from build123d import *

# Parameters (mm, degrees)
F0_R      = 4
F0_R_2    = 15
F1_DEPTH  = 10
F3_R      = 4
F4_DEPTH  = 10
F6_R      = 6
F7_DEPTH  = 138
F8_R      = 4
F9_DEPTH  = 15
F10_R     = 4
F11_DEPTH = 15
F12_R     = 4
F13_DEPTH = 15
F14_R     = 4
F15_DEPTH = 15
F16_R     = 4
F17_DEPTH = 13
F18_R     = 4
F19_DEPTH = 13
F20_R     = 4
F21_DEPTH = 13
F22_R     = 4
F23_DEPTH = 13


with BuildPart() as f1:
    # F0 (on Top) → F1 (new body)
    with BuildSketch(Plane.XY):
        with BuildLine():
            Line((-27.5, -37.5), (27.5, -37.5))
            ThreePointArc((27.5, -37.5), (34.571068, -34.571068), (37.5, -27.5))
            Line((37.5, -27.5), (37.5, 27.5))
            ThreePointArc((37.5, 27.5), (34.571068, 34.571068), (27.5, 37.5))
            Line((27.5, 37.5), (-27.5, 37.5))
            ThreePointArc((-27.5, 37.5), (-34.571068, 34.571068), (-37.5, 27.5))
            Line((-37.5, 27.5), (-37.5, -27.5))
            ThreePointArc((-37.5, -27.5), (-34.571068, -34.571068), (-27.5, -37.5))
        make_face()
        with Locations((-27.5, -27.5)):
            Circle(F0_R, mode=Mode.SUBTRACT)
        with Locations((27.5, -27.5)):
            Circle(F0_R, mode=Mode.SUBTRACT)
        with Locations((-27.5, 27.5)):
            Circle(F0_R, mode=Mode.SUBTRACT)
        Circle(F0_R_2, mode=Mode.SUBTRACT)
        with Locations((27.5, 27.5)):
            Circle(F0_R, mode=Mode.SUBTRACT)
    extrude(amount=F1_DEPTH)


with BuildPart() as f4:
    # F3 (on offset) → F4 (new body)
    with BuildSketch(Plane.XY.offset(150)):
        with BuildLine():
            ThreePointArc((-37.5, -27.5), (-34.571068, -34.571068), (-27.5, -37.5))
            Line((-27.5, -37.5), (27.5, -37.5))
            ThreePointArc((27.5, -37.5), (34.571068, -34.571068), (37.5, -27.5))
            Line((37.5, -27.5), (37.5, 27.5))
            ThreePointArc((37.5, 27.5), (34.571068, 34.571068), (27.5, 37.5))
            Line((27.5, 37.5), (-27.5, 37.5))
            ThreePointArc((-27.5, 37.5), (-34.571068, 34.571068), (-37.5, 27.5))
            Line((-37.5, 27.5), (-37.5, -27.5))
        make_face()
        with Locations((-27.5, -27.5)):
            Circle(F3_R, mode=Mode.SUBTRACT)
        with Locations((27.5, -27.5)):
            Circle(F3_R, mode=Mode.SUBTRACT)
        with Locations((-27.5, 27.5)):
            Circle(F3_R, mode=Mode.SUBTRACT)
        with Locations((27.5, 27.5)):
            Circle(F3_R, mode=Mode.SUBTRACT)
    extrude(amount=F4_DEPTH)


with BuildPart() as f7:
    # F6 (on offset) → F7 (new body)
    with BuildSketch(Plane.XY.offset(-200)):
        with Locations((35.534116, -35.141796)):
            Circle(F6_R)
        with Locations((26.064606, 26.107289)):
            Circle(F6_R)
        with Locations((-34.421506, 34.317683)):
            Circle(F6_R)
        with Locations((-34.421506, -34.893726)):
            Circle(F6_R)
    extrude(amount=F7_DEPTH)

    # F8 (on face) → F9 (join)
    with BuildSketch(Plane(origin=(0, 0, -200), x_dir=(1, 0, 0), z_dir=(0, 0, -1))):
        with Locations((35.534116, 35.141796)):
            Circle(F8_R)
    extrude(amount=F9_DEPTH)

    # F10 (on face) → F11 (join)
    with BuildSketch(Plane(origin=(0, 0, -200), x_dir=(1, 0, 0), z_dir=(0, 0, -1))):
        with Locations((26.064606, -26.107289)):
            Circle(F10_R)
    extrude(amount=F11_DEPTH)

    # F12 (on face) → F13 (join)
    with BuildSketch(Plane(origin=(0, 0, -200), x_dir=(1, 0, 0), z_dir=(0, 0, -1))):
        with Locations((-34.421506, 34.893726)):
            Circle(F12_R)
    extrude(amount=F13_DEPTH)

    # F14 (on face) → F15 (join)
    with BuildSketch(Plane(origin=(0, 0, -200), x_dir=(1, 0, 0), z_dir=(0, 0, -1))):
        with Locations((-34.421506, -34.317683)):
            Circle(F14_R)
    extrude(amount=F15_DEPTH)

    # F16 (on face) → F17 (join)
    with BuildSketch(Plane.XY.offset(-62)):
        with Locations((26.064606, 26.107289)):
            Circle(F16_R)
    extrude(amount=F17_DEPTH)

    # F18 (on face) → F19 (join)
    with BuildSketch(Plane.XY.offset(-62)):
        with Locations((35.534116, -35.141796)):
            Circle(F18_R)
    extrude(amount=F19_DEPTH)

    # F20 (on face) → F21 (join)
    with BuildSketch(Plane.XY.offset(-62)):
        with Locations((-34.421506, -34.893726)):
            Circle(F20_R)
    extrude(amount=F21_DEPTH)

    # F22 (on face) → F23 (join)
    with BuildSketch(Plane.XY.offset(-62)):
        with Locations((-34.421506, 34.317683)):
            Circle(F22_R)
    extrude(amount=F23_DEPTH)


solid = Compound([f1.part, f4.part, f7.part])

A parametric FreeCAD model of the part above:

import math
import FreeCAD as App
import Part
import Sketcher
from FreeCAD import Vector

doc = App.newDocument("Part")
body = doc.addObject("PartDesign::Body", "Body")

sketch1 = doc.addObject("Sketcher::SketchObject", "Sketch")
body.addObject(sketch1)
sketch1.AttachmentSupport = (doc.XY_Plane, [""])
sketch1.MapMode = "FlatFace"
sketch1.addGeometry([
    Part.LineSegment(Vector(-27.5, -37.5, 0), Vector(27.5, -37.5, 0)),
    Part.ArcOfCircle(Part.Circle(Vector(27.500001, -27.500001, 0), Vector(0, 0, 1), 9.999999), math.radians(-90.000004), math.radians(0.000004)),
    Part.LineSegment(Vector(37.5, -27.5, 0), Vector(37.5, 27.5, 0)),
    Part.ArcOfCircle(Part.Circle(Vector(27.500001, 27.500001, 0), Vector(0, 0, 1), 9.999999), math.radians(-0.000004), math.radians(90.000004)),
    Part.LineSegment(Vector(27.5, 37.5, 0), Vector(-27.5, 37.5, 0)),
    Part.ArcOfCircle(Part.Circle(Vector(-27.500001, 27.500001, 0), Vector(0, 0, 1), 9.999999), math.radians(89.999996), math.radians(180.000004)),
    Part.LineSegment(Vector(-37.5, 27.5, 0), Vector(-37.5, -27.5, 0)),
    Part.ArcOfCircle(Part.Circle(Vector(-27.500001, -27.500001, 0), Vector(0, 0, 1), 9.999999), math.radians(179.999996), math.radians(270.000004)),
    Part.Circle(Vector(-27.5, -27.5, 0), Vector(0, 0, 1), 4),
    Part.Circle(Vector(27.5, -27.5, 0), Vector(0, 0, 1), 4),
    Part.Circle(Vector(-27.5, 27.5, 0), Vector(0, 0, 1), 4),
    Part.Circle(Vector(0, 0, 0), Vector(0, 0, 1), 15),
    Part.Circle(Vector(27.5, 27.5, 0), Vector(0, 0, 1), 4),
], False)
sketch1.addConstraint([
    Sketcher.Constraint("Tangent", 0, 2, 1, 1),
    Sketcher.Constraint("Tangent", 1, 2, 2, 1),
    Sketcher.Constraint("Tangent", 2, 2, 3, 1),
    Sketcher.Constraint("Tangent", 3, 2, 4, 1),
    Sketcher.Constraint("Tangent", 4, 2, 5, 1),
    Sketcher.Constraint("Tangent", 5, 2, 6, 1),
    Sketcher.Constraint("Tangent", 6, 2, 7, 1),
    Sketcher.Constraint("Tangent", 7, 2, 0, 1),
    Sketcher.Constraint("Horizontal", 0),
    Sketcher.Constraint("Vertical", 2),
    Sketcher.Constraint("Horizontal", 4),
    Sketcher.Constraint("Vertical", 6),
    Sketcher.Constraint("Coincident", 11, 3, -1, 1),
    Sketcher.Constraint("Coincident", 8, 3, 7, 3),
    Sketcher.Constraint("Coincident", 9, 3, 1, 3),
    Sketcher.Constraint("Coincident", 10, 3, 5, 3),
    Sketcher.Constraint("Coincident", 12, 3, 3, 3),
    Sketcher.Constraint("Equal", 1, 3),
    Sketcher.Constraint("Equal", 3, 5),
    Sketcher.Constraint("Equal", 5, 7),
    Sketcher.Constraint("Equal", 8, 9),
    Sketcher.Constraint("Equal", 9, 10),
    Sketcher.Constraint("Equal", 10, 12),
    Sketcher.Constraint("Symmetric", 1, 3, 5, 3, -1, 1),
    Sketcher.Constraint("Equal", 4, 2),
    Sketcher.Constraint("Diameter", 8, 8.0),
    Sketcher.Constraint("Diameter", 11, 30.0),
    Sketcher.Constraint("Radius", 1, 9.999999),
    Sketcher.Constraint("DistanceX", 0, 1, 0, 2, 55.0),
])
pad1 = doc.addObject("PartDesign::Pad", "Pad")
body.addObject(pad1)
pad1.Profile = sketch1
pad1.Length = 10
body2 = doc.addObject("PartDesign::Body", "Body001")

sketch2 = doc.addObject("Sketcher::SketchObject", "Sketch001")
body2.addObject(sketch2)
sketch2.AttachmentSupport = (doc.getObject("XY_Plane001"), [""])
sketch2.MapMode = "FlatFace"
sketch2.AttachmentOffset = App.Placement(Vector(0, 0, 150), App.Rotation())
sketch2.addGeometry([
    Part.ArcOfCircle(Part.Circle(Vector(-27.500001, -27.500001, 0), Vector(0, 0, 1), 9.999999), math.radians(179.999996), math.radians(270.000004)),
    Part.LineSegment(Vector(-27.5, -37.5, 0), Vector(27.5, -37.5, 0)),
    Part.ArcOfCircle(Part.Circle(Vector(27.500001, -27.500001, 0), Vector(0, 0, 1), 9.999999), math.radians(-90.000004), math.radians(0.000004)),
    Part.LineSegment(Vector(37.5, -27.5, 0), Vector(37.5, 27.5, 0)),
    Part.ArcOfCircle(Part.Circle(Vector(27.500001, 27.500001, 0), Vector(0, 0, 1), 9.999999), math.radians(-0.000004), math.radians(90.000004)),
    Part.LineSegment(Vector(27.5, 37.5, 0), Vector(-27.5, 37.5, 0)),
    Part.ArcOfCircle(Part.Circle(Vector(-27.500001, 27.500001, 0), Vector(0, 0, 1), 9.999999), math.radians(89.999996), math.radians(180.000004)),
    Part.LineSegment(Vector(-37.5, 27.5, 0), Vector(-37.5, -27.5, 0)),
    Part.Circle(Vector(-27.5, -27.5, 0), Vector(0, 0, 1), 4),
    Part.Circle(Vector(27.5, -27.5, 0), Vector(0, 0, 1), 4),
    Part.Circle(Vector(-27.5, 27.5, 0), Vector(0, 0, 1), 4),
    Part.Circle(Vector(27.5, 27.5, 0), Vector(0, 0, 1), 4),
], False)
sketch2.addConstraint([
    Sketcher.Constraint("Tangent", 0, 2, 1, 1),
    Sketcher.Constraint("Tangent", 1, 2, 2, 1),
    Sketcher.Constraint("Tangent", 2, 2, 3, 1),
    Sketcher.Constraint("Tangent", 3, 2, 4, 1),
    Sketcher.Constraint("Tangent", 4, 2, 5, 1),
    Sketcher.Constraint("Tangent", 5, 2, 6, 1),
    Sketcher.Constraint("Tangent", 6, 2, 7, 1),
    Sketcher.Constraint("Tangent", 7, 2, 0, 1),
    Sketcher.Constraint("Horizontal", 1),
    Sketcher.Constraint("Vertical", 3),
    Sketcher.Constraint("Horizontal", 5),
    Sketcher.Constraint("Vertical", 7),
    Sketcher.Constraint("Coincident", 8, 3, 0, 3),
    Sketcher.Constraint("Coincident", 9, 3, 2, 3),
    Sketcher.Constraint("Coincident", 10, 3, 6, 3),
    Sketcher.Constraint("Coincident", 11, 3, 4, 3),
    Sketcher.Constraint("Equal", 0, 2),
    Sketcher.Constraint("Equal", 2, 4),
    Sketcher.Constraint("Equal", 4, 6),
    Sketcher.Constraint("Equal", 8, 9),
    Sketcher.Constraint("Equal", 9, 10),
    Sketcher.Constraint("Equal", 10, 11),
    Sketcher.Constraint("Symmetric", 0, 3, 4, 3, -1, 1),
    Sketcher.Constraint("Equal", 5, 3),
    Sketcher.Constraint("Diameter", 8, 8.0),
    Sketcher.Constraint("Radius", 0, 9.999999),
    Sketcher.Constraint("DistanceX", 1, 1, 1, 2, 55.0),
])
pad2 = doc.addObject("PartDesign::Pad", "Pad001")
body2.addObject(pad2)
pad2.Profile = sketch2
pad2.Length = 10
body3 = doc.addObject("PartDesign::Body", "Body002")
body3.AllowCompound = True

sketch3 = doc.addObject("Sketcher::SketchObject", "Sketch002")
body3.addObject(sketch3)
sketch3.AttachmentSupport = (doc.getObject("XY_Plane002"), [""])
sketch3.MapMode = "FlatFace"
sketch3.AttachmentOffset = App.Placement(Vector(0, 0, -200), App.Rotation())
sketch3.addGeometry([
    Part.Circle(Vector(35.534116, -35.141796, 0), Vector(0, 0, 1), 6),
    Part.Circle(Vector(26.064606, 26.107289, 0), Vector(0, 0, 1), 6),
    Part.Circle(Vector(-34.421506, 34.317683, 0), Vector(0, 0, 1), 6),
    Part.Circle(Vector(-34.421506, -34.893726, 0), Vector(0, 0, 1), 6),
], False)
sketch3.addConstraint([
    Sketcher.Constraint("Equal", 0, 1),
    Sketcher.Constraint("Equal", 1, 2),
    Sketcher.Constraint("Equal", 2, 3),
    Sketcher.Constraint("Vertical", 2, 3, 3, 3),
    Sketcher.Constraint("Diameter", 0, 12.0),
    Sketcher.Constraint("DistanceY", -1, 1, 1, 3, 26.107289),
    Sketcher.Constraint("DistanceX", 1, 3, 0, 3, 9.46951),
    Sketcher.Constraint("DistanceY", 0, 3, 2, 3, 69.459479),
    Sketcher.Constraint("DistanceY", 3, 3, 2, 3, 69.211409),
    Sketcher.Constraint("DistanceX", -1, 1, 0, 3, 35.534116),
    Sketcher.Constraint("DistanceY", 0, 3, -1, 1, 35.141796),
    Sketcher.Constraint("DistanceX", 2, 3, -1, 1, 34.421506),
])
pad3 = doc.addObject("PartDesign::Pad", "Pad002")
body3.addObject(pad3)
pad3.Profile = sketch3
pad3.Length = 138

sketch4 = doc.addObject("Sketcher::SketchObject", "Sketch003")
body3.addObject(sketch4)
sketch4.AttachmentSupport = (doc.getObject("XY_Plane002"), [""])
sketch4.MapMode = "FlatFace"
sketch4.AttachmentOffset = App.Placement(Vector(0, 0, -200), App.Rotation())
sketch4.addGeometry(Part.Circle(Vector(35.534116, -35.141796, 0), Vector(0, 0, 1), 4), False)
sketch4.addConstraint([
    Sketcher.Constraint("Diameter", 0, 8.0),
    Sketcher.Constraint("DistanceX", -1, 1, 0, 3, 35.534116),
    Sketcher.Constraint("DistanceY", 0, 3, -1, 1, 35.141796),
])
pad4 = doc.addObject("PartDesign::Pad", "Pad003")
body3.addObject(pad4)
pad4.Profile = sketch4
pad4.Length = 15
pad4.Reversed = True

sketch5 = doc.addObject("Sketcher::SketchObject", "Sketch004")
body3.addObject(sketch5)
sketch5.AttachmentSupport = (doc.getObject("XY_Plane002"), [""])
sketch5.MapMode = "FlatFace"
sketch5.AttachmentOffset = App.Placement(Vector(0, 0, -200), App.Rotation())
sketch5.addGeometry(Part.Circle(Vector(26.064606, 26.107289, 0), Vector(0, 0, 1), 4), False)
sketch5.addConstraint([
    Sketcher.Constraint("Diameter", 0, 8.0),
    Sketcher.Constraint("DistanceY", -1, 1, 0, 3, 26.107289),
    Sketcher.Constraint("DistanceX", -1, 1, 0, 3, 26.064606),
])
pad5 = doc.addObject("PartDesign::Pad", "Pad004")
body3.addObject(pad5)
pad5.Profile = sketch5
pad5.Length = 15
pad5.Reversed = True

sketch6 = doc.addObject("Sketcher::SketchObject", "Sketch005")
body3.addObject(sketch6)
sketch6.AttachmentSupport = (doc.getObject("XY_Plane002"), [""])
sketch6.MapMode = "FlatFace"
sketch6.AttachmentOffset = App.Placement(Vector(0, 0, -200), App.Rotation())
sketch6.addGeometry(Part.Circle(Vector(-34.421506, -34.893726, 0), Vector(0, 0, 1), 4), False)
sketch6.addConstraint([
    Sketcher.Constraint("Diameter", 0, 8.0),
    Sketcher.Constraint("DistanceX", 0, 3, -1, 1, 34.421506),
    Sketcher.Constraint("DistanceY", 0, 3, -1, 1, 34.893726),
])
pad6 = doc.addObject("PartDesign::Pad", "Pad005")
body3.addObject(pad6)
pad6.Profile = sketch6
pad6.Length = 15
pad6.Reversed = True

sketch7 = doc.addObject("Sketcher::SketchObject", "Sketch006")
body3.addObject(sketch7)
sketch7.AttachmentSupport = (doc.getObject("XY_Plane002"), [""])
sketch7.MapMode = "FlatFace"
sketch7.AttachmentOffset = App.Placement(Vector(0, 0, -200), App.Rotation())
sketch7.addGeometry(Part.Circle(Vector(-34.421506, 34.317683, 0), Vector(0, 0, 1), 4), False)
sketch7.addConstraint([
    Sketcher.Constraint("Diameter", 0, 8.0),
    Sketcher.Constraint("DistanceX", 0, 3, -1, 1, 34.421506),
    Sketcher.Constraint("DistanceY", -1, 1, 0, 3, 34.317683),
])
pad7 = doc.addObject("PartDesign::Pad", "Pad006")
body3.addObject(pad7)
pad7.Profile = sketch7
pad7.Length = 15
pad7.Reversed = True

sketch8 = doc.addObject("Sketcher::SketchObject", "Sketch007")
body3.addObject(sketch8)
sketch8.AttachmentSupport = (doc.getObject("XY_Plane002"), [""])
sketch8.MapMode = "FlatFace"
sketch8.AttachmentOffset = App.Placement(Vector(0, 0, -62), App.Rotation())
sketch8.addGeometry(Part.Circle(Vector(26.064606, 26.107289, 0), Vector(0, 0, 1), 4), False)
sketch8.addConstraint([
    Sketcher.Constraint("Diameter", 0, 8.0),
    Sketcher.Constraint("DistanceY", -1, 1, 0, 3, 26.107289),
    Sketcher.Constraint("DistanceX", -1, 1, 0, 3, 26.064606),
])
pad8 = doc.addObject("PartDesign::Pad", "Pad007")
body3.addObject(pad8)
pad8.Profile = sketch8
pad8.Length = 13

sketch9 = doc.addObject("Sketcher::SketchObject", "Sketch008")
body3.addObject(sketch9)
sketch9.AttachmentSupport = (doc.getObject("XY_Plane002"), [""])
sketch9.MapMode = "FlatFace"
sketch9.AttachmentOffset = App.Placement(Vector(0, 0, -62), App.Rotation())
sketch9.addGeometry(Part.Circle(Vector(35.534116, -35.141796, 0), Vector(0, 0, 1), 4), False)
sketch9.addConstraint([
    Sketcher.Constraint("Diameter", 0, 8.0),
    Sketcher.Constraint("DistanceX", -1, 1, 0, 3, 35.534116),
    Sketcher.Constraint("DistanceY", 0, 3, -1, 1, 35.141796),
])
pad9 = doc.addObject("PartDesign::Pad", "Pad008")
body3.addObject(pad9)
pad9.Profile = sketch9
pad9.Length = 13

sketch10 = doc.addObject("Sketcher::SketchObject", "Sketch009")
body3.addObject(sketch10)
sketch10.AttachmentSupport = (doc.getObject("XY_Plane002"), [""])
sketch10.MapMode = "FlatFace"
sketch10.AttachmentOffset = App.Placement(Vector(0, 0, -62), App.Rotation())
sketch10.addGeometry(Part.Circle(Vector(-34.421506, -34.893726, 0), Vector(0, 0, 1), 4), False)
sketch10.addConstraint([
    Sketcher.Constraint("Diameter", 0, 8.0),
    Sketcher.Constraint("DistanceX", 0, 3, -1, 1, 34.421506),
    Sketcher.Constraint("DistanceY", 0, 3, -1, 1, 34.893726),
])
pad10 = doc.addObject("PartDesign::Pad", "Pad009")
body3.addObject(pad10)
pad10.Profile = sketch10
pad10.Length = 13

sketch11 = doc.addObject("Sketcher::SketchObject", "Sketch010")
body3.addObject(sketch11)
sketch11.AttachmentSupport = (doc.getObject("XY_Plane002"), [""])
sketch11.MapMode = "FlatFace"
sketch11.AttachmentOffset = App.Placement(Vector(0, 0, -62), App.Rotation())
sketch11.addGeometry(Part.Circle(Vector(-34.421506, 34.317683, 0), Vector(0, 0, 1), 4), False)
sketch11.addConstraint([
    Sketcher.Constraint("Diameter", 0, 8.0),
    Sketcher.Constraint("DistanceX", 0, 3, -1, 1, 34.421506),
    Sketcher.Constraint("DistanceY", -1, 1, 0, 3, 34.317683),
])
pad11 = doc.addObject("PartDesign::Pad", "Pad010")
body3.addObject(pad11)
pad11.Profile = sketch11
pad11.Length = 13

doc.recompute()
